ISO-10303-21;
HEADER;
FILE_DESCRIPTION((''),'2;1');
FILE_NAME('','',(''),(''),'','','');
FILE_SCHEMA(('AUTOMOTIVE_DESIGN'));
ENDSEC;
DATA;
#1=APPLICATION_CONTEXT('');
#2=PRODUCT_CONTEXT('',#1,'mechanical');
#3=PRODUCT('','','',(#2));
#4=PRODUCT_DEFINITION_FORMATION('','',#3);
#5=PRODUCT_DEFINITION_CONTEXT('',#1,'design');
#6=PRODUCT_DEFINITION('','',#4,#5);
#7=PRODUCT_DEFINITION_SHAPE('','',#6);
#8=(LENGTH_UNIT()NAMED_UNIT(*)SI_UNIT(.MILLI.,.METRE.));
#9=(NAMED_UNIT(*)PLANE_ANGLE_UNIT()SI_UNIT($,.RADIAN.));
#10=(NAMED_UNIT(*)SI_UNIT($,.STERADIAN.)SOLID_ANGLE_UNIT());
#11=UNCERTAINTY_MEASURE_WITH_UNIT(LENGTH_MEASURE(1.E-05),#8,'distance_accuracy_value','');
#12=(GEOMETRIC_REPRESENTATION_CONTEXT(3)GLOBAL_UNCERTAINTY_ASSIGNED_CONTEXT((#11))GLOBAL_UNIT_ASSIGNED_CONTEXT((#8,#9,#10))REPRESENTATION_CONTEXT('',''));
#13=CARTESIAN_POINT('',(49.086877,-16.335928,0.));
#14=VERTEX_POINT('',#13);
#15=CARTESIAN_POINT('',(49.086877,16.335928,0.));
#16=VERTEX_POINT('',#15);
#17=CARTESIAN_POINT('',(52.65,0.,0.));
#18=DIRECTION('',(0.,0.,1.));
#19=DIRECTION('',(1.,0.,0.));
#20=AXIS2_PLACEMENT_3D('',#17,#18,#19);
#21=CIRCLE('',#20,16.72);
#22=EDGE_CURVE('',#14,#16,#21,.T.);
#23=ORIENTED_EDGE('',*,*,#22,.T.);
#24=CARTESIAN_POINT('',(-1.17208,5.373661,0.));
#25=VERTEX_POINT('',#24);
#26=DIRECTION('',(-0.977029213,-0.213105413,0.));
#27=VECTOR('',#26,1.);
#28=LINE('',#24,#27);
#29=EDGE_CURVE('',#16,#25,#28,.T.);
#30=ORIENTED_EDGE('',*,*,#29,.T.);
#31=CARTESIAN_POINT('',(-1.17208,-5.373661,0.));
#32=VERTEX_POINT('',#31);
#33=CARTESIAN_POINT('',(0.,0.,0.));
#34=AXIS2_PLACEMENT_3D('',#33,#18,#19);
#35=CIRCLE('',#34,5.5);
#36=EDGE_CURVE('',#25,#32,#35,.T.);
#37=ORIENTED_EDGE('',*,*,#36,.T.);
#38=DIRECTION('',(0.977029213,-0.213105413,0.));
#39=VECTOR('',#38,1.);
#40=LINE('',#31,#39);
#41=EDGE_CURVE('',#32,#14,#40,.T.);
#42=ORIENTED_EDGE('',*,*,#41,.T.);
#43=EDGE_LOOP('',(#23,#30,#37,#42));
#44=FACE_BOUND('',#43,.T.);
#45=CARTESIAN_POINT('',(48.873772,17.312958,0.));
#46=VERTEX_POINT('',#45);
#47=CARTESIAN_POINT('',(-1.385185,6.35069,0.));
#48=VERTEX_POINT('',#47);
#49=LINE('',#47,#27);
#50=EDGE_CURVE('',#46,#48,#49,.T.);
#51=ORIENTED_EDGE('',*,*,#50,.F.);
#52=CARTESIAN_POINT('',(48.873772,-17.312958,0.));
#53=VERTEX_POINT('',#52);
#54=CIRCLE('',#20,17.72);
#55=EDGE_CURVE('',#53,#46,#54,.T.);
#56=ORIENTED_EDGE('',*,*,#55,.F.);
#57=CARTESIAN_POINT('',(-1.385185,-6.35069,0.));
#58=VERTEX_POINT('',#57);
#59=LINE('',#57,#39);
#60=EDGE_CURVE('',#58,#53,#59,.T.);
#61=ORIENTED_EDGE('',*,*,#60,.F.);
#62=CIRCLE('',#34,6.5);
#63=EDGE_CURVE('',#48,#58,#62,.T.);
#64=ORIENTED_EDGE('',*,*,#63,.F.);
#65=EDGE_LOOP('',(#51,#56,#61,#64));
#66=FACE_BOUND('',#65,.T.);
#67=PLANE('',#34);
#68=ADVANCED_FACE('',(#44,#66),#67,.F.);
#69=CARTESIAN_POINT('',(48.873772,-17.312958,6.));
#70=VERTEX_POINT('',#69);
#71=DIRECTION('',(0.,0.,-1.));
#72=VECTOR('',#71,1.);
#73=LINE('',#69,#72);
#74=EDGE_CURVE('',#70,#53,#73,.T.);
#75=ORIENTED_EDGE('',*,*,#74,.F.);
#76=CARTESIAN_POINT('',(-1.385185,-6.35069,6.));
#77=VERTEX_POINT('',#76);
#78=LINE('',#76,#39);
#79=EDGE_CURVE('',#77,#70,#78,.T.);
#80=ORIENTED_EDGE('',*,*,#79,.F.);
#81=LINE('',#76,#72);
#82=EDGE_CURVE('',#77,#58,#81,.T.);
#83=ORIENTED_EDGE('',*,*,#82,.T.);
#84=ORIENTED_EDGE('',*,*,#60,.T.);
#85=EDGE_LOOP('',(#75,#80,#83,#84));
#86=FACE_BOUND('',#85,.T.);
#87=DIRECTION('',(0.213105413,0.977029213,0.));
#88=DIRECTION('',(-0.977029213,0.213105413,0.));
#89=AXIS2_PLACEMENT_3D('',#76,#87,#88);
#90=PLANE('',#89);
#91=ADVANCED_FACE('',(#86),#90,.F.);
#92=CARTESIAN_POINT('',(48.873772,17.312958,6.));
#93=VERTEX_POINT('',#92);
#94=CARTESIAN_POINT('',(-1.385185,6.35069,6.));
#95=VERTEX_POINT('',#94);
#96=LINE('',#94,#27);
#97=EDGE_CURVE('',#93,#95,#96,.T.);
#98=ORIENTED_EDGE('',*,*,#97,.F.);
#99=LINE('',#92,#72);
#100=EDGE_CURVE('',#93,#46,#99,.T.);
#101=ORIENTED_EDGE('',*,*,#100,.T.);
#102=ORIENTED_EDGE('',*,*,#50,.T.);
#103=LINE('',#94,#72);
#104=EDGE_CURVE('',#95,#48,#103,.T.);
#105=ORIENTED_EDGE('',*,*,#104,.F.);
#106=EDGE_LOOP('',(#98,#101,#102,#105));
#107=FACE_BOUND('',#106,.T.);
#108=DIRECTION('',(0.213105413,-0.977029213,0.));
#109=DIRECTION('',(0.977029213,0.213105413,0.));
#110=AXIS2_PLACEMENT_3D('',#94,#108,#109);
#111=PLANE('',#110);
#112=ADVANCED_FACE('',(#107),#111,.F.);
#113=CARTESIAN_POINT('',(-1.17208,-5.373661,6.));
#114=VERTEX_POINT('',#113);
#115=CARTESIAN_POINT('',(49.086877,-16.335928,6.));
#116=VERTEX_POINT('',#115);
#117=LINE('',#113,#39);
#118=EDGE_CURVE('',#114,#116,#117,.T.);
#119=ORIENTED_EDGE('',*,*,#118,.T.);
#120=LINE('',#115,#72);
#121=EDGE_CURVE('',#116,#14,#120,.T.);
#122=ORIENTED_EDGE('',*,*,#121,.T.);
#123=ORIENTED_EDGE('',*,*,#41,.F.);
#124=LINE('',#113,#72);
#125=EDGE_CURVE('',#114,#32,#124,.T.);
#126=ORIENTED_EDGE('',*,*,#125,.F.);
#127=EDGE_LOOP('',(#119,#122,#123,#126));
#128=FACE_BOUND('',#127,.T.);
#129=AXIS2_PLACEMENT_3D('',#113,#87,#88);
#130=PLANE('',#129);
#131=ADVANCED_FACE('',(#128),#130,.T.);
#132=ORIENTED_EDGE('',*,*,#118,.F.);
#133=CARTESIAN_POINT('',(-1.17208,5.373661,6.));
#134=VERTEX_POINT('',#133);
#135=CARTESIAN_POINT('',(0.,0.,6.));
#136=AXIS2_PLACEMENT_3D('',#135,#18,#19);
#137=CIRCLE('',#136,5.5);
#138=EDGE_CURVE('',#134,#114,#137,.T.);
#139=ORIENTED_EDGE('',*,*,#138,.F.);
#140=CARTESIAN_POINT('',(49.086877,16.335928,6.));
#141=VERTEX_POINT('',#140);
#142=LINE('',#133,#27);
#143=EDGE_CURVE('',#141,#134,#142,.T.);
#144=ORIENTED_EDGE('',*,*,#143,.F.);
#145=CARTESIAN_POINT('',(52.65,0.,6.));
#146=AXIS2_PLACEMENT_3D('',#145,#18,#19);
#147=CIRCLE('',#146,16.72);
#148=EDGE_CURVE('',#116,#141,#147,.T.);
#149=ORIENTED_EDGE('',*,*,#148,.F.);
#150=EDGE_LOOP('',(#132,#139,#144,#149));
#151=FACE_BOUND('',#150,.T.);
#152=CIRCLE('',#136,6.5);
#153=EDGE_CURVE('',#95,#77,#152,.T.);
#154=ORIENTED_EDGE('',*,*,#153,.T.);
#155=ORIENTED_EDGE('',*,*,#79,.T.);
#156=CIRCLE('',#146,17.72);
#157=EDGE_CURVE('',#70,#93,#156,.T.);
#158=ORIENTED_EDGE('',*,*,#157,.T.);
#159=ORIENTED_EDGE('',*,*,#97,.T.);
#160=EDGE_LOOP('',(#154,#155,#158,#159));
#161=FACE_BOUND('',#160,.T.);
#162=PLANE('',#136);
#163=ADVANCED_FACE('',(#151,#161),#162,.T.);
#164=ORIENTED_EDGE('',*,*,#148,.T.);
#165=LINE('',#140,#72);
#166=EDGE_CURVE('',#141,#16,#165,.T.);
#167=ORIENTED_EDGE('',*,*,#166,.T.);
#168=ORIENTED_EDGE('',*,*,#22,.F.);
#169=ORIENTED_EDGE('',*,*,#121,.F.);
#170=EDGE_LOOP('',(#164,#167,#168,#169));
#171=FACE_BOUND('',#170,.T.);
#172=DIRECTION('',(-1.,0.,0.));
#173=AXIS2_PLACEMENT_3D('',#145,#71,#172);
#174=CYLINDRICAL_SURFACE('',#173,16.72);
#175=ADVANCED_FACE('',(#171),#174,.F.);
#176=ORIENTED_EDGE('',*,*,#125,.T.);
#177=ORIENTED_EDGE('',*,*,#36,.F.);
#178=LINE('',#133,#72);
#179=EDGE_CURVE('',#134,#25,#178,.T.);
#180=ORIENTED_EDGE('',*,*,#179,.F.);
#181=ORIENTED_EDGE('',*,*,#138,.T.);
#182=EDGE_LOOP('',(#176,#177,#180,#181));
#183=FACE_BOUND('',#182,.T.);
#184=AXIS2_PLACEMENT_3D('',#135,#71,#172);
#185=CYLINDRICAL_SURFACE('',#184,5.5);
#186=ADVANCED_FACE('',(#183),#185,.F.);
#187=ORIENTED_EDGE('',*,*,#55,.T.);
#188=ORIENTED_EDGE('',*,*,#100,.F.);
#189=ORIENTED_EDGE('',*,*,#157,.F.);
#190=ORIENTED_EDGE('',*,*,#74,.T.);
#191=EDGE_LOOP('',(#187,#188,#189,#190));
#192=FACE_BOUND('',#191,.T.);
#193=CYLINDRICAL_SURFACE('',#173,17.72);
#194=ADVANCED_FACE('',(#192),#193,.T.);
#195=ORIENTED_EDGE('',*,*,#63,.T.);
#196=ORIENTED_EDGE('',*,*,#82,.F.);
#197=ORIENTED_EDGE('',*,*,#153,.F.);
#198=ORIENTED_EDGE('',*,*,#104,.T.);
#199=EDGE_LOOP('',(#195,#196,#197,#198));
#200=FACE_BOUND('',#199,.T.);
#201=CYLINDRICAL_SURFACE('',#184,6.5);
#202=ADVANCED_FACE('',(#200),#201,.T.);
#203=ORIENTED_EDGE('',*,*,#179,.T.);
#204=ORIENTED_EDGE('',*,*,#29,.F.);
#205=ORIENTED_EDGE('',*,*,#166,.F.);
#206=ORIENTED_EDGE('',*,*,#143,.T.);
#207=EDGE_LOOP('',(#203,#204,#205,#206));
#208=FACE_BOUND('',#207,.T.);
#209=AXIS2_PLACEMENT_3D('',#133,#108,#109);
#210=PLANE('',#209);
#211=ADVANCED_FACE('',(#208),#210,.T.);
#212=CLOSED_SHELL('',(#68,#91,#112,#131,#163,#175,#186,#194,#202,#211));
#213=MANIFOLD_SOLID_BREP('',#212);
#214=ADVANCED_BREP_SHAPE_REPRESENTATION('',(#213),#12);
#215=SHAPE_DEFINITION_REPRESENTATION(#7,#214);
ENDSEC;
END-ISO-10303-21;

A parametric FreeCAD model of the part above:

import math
import FreeCAD as App
import Part
import Sketcher

doc = App.newDocument("Part")
body = doc.addObject("PartDesign::Body", "Body")

sketch1 = doc.addObject("Sketcher::SketchObject", "Sketch")
body.addObject(sketch1)
sketch1.AttachmentSupport = (doc.XY_Plane, [""])
sketch1.MapMode = "FlatFace"
sketch1.addGeometry(Part.LineSegment(App.Vector(49, 17, 0), App.Vector(-1, 6, 0)), False)
sketch1.addGeometry(Part.ArcOfCircle(Part.Circle(App.Vector(0, 0, 0), App.Vector(0, 0, 1), 6), math.radians(102), math.radians(258)), False)
sketch1.addGeometry(Part.LineSegment(App.Vector(-1, -6, 0), App.Vector(49, -17, 0)), False)
sketch1.addGeometry(Part.ArcOfCircle(Part.Circle(App.Vector(53, 0, 0), App.Vector(0, 0, 1), 18), math.radians(-102), math.radians(102)), False)
sketch1.addGeometry(Part.LineSegment(App.Vector(-1, 5, 0), App.Vector(49, 16, 0)), False)
sketch1.addGeometry(Part.ArcOfCircle(Part.Circle(App.Vector(53, 0, 0), App.Vector(0, 0, 1), 17), math.radians(-102), math.radians(102)), False)
sketch1.addGeometry(Part.LineSegment(App.Vector(49, -16, 0), App.Vector(-1, -5, 0)), False)
sketch1.addGeometry(Part.ArcOfCircle(Part.Circle(App.Vector(0, 0, 0), App.Vector(0, 0, 1), 6), math.radians(102), math.radians(258)), False)
sketch1.addConstraint(Sketcher.Constraint("Tangent", 0, 2, 1, 1))
sketch1.addConstraint(Sketcher.Constraint("Tangent", 1, 2, 2, 1))
sketch1.addConstraint(Sketcher.Constraint("Tangent", 2, 2, 3, 1))
sketch1.addConstraint(Sketcher.Constraint("Tangent", 3, 2, 0, 1))
sketch1.addConstraint(Sketcher.Constraint("Tangent", 4, 2, 5, 2))
sketch1.addConstraint(Sketcher.Constraint("Tangent", 5, 1, 6, 1))
sketch1.addConstraint(Sketcher.Constraint("Tangent", 6, 2, 7, 2))
sketch1.addConstraint(Sketcher.Constraint("Tangent", 7, 1, 4, 1))
sketch1.addConstraint(Sketcher.Constraint("Coincident", 1, 3, -1, 1))
sketch1.addConstraint(Sketcher.Constraint("Coincident", 7, 3, -1, 1))
sketch1.addConstraint(Sketcher.Constraint("Coincident", 5, 3, 3, 3))
sketch1.addConstraint(Sketcher.Constraint("PointOnObject", 3, 3, -1))
sketch1.addConstraint(Sketcher.Constraint("Parallel", 0, 4))
sketch1.addConstraint(Sketcher.Constraint("Radius", 1, 6.5))
sketch1.addConstraint(Sketcher.Constraint("Radius", 7, 5.5))
sketch1.addConstraint(Sketcher.Constraint("Radius", 3, 17.72))
sketch1.addConstraint(Sketcher.Constraint("DistanceX", -1, 1, 3, 3, 52.65))
pad1 = doc.addObject("PartDesign::Pad", "Pad")
body.addObject(pad1)
pad1.Profile = sketch1
pad1.Length = 6

doc.recompute()
